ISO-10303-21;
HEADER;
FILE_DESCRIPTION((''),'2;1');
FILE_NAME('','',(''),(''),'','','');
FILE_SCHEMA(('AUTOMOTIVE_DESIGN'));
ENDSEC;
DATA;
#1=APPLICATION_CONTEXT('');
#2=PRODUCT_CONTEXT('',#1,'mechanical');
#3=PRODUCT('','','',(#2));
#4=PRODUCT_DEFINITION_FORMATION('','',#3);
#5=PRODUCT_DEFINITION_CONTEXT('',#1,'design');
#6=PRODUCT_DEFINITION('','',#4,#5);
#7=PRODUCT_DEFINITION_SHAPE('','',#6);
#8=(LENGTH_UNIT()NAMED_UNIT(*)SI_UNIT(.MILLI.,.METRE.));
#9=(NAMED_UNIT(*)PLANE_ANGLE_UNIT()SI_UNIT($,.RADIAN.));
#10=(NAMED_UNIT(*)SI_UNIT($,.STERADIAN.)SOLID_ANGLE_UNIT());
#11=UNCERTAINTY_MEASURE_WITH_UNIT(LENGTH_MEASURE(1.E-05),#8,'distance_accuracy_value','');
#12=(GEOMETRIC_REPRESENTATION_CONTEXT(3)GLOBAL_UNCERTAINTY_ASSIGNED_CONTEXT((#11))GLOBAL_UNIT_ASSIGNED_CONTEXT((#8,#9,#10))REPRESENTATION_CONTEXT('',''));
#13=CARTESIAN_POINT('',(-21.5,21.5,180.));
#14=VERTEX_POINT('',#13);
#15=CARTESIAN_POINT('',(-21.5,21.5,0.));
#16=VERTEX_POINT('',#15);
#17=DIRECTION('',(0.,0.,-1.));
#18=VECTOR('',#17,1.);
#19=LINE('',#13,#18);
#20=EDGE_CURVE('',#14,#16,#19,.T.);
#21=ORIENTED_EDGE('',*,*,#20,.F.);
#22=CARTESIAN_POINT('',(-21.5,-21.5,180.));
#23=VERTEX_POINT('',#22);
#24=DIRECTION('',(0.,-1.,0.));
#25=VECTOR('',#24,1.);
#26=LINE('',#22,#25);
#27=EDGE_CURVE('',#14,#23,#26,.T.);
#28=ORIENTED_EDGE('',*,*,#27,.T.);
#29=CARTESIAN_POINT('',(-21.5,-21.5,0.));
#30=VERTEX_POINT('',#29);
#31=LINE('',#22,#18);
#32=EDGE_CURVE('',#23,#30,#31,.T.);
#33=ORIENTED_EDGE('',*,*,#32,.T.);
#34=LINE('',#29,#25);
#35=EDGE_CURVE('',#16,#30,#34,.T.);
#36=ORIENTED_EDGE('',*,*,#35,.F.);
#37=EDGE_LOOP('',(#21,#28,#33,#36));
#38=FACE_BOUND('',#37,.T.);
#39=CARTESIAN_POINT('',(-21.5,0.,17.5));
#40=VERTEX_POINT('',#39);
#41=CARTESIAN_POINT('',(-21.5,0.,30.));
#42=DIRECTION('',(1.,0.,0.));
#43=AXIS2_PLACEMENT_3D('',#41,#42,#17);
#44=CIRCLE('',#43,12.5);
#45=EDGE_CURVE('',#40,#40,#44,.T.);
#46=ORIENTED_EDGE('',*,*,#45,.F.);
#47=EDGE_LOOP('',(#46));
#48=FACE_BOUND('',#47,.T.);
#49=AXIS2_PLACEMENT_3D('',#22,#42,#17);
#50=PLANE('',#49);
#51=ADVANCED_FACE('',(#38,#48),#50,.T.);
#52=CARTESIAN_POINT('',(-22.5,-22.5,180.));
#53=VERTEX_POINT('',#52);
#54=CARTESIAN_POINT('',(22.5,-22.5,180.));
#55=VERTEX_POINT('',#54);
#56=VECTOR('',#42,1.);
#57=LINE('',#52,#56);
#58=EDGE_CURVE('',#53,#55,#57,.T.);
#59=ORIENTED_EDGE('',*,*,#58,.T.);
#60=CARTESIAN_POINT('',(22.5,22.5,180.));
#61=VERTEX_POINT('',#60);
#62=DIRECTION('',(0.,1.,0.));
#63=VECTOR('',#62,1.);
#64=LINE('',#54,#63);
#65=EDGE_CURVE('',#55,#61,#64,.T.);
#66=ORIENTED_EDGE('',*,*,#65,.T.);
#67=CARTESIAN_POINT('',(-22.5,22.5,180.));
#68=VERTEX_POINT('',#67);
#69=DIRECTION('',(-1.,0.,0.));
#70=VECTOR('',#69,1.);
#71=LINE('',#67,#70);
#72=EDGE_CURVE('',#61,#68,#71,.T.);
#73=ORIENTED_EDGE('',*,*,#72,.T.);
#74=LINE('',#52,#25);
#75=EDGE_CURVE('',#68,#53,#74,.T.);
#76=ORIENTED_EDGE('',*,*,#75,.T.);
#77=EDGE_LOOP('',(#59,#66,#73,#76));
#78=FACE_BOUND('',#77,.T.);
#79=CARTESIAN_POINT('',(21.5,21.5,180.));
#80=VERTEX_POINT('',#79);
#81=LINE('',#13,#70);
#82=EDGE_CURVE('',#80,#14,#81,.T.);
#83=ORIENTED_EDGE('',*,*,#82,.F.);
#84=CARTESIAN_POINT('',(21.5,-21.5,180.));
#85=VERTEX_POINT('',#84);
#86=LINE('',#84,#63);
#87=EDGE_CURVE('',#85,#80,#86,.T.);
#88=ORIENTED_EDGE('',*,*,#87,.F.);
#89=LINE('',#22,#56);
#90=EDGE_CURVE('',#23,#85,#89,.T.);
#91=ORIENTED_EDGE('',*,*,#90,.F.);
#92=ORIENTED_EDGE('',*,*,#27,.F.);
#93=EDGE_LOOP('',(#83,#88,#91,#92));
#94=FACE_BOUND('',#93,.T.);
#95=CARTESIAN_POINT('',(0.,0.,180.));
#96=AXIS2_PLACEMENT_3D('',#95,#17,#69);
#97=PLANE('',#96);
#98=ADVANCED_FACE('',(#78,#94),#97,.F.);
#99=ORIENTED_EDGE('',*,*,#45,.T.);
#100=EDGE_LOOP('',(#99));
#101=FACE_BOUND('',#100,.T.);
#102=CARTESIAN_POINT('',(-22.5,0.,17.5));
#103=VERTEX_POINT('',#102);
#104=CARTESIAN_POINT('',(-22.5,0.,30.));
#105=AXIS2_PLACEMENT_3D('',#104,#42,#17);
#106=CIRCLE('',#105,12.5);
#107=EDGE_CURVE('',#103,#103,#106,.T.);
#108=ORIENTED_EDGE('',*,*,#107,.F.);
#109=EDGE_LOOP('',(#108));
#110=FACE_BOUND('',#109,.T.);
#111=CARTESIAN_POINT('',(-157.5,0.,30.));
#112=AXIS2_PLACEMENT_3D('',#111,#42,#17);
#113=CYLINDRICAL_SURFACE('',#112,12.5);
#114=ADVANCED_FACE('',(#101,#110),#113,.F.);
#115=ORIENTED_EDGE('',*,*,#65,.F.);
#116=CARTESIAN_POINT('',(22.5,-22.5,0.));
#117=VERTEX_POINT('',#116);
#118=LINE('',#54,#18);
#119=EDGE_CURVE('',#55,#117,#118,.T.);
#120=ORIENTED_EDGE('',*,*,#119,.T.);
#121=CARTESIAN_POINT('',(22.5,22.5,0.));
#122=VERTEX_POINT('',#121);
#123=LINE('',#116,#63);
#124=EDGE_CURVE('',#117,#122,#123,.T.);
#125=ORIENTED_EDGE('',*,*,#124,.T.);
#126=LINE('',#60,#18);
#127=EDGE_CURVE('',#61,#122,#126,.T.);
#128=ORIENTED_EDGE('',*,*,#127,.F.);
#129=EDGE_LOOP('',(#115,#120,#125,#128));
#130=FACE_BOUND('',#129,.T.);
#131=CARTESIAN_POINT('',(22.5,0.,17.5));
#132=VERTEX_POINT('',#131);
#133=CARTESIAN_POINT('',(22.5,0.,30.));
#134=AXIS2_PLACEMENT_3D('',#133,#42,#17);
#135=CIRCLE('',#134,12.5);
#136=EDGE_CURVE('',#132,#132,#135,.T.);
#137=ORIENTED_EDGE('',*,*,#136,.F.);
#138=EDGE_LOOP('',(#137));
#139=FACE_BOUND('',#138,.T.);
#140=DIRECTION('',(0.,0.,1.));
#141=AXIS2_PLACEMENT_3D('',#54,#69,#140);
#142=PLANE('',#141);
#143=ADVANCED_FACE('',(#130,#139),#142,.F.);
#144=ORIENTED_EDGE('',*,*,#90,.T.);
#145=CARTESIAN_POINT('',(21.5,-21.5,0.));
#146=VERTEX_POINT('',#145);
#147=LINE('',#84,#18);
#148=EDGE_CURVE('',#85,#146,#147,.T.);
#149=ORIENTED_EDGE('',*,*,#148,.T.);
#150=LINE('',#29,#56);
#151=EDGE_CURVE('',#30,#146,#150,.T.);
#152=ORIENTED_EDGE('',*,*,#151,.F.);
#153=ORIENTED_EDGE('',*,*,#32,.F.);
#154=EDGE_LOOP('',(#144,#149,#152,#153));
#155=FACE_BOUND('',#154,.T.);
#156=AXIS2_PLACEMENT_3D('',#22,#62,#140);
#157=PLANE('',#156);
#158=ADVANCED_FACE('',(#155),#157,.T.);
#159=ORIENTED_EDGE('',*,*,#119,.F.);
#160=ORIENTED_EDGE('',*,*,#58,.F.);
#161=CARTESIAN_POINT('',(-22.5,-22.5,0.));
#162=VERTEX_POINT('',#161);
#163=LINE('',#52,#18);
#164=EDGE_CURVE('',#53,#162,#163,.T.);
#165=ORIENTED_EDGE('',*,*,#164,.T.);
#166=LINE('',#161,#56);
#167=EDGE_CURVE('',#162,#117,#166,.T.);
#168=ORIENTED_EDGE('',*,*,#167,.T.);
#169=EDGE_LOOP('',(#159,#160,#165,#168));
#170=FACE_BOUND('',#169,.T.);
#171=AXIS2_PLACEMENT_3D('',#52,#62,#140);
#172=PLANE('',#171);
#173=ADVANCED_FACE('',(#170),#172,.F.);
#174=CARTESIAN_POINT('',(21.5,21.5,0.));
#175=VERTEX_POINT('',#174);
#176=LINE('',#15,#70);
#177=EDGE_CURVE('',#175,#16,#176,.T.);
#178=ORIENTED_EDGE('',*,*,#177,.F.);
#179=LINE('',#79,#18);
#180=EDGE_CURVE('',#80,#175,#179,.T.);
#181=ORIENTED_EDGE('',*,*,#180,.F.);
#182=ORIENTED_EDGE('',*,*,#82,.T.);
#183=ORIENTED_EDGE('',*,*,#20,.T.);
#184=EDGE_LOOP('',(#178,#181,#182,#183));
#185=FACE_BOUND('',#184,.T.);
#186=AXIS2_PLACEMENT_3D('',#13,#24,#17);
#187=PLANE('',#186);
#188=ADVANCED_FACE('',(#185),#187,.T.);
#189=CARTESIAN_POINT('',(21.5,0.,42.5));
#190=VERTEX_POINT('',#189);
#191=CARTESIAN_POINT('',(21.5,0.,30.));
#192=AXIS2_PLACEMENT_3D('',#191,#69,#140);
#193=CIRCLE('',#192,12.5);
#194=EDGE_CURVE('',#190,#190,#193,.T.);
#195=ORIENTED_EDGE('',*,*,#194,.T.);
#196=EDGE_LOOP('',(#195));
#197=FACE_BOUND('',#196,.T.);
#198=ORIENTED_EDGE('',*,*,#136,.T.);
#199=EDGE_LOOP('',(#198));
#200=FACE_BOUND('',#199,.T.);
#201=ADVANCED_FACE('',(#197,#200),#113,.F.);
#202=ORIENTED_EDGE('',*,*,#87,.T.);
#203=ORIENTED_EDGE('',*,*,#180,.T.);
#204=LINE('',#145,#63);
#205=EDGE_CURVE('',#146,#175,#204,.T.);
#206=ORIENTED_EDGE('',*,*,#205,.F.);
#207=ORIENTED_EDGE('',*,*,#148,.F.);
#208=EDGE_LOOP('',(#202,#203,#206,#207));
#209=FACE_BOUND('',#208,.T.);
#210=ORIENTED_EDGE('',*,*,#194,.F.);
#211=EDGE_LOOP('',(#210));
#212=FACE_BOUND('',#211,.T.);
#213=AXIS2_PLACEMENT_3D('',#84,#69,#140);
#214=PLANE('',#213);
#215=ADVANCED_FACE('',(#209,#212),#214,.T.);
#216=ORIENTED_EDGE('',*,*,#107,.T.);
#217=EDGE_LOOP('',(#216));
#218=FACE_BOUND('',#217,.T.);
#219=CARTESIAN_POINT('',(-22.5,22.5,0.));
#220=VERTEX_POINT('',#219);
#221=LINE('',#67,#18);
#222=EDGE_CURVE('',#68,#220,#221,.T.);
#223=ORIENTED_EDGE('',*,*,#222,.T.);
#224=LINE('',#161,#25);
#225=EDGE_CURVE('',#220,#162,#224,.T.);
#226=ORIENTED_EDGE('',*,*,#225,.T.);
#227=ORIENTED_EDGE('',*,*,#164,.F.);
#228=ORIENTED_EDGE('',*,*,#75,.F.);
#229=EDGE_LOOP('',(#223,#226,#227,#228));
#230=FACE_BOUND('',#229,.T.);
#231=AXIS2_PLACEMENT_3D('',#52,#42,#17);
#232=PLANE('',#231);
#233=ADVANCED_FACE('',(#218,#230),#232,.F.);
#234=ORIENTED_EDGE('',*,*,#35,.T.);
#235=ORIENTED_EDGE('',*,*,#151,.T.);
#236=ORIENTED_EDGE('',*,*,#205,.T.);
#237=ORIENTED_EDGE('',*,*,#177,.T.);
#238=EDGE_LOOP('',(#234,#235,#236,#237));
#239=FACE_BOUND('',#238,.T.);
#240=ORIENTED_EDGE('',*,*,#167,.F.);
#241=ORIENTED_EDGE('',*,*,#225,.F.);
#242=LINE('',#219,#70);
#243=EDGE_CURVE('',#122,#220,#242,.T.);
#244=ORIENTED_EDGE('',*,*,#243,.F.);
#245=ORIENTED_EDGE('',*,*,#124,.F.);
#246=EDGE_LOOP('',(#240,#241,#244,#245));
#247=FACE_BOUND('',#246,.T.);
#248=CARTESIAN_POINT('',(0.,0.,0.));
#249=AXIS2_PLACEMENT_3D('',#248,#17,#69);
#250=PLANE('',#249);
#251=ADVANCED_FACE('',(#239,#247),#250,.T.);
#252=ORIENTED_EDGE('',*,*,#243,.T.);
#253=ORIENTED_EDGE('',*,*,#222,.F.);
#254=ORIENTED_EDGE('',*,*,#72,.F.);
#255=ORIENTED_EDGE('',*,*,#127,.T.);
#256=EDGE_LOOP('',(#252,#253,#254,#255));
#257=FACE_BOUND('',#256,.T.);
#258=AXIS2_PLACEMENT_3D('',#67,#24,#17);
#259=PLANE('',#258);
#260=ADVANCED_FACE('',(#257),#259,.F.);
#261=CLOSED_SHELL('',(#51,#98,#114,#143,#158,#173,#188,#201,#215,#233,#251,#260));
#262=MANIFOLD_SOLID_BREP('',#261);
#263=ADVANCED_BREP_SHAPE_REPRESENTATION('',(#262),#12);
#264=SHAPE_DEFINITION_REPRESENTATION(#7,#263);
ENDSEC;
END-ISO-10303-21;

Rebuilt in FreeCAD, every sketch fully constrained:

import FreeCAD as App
import Part
import Sketcher
from FreeCAD import Vector


def add_polygon(sketch, points):
    """Adds a closed chain of lines whose ends are joined by coincident constraints."""
    first, n = sketch.GeometryCount, len(points)
    for a, b in zip(points, points[1:] + points[:1]):
        sketch.addGeometry(Part.LineSegment(App.Vector(*a, 0), App.Vector(*b, 0)), False)
    for i in range(n):
        sketch.addConstraint(Sketcher.Constraint("Coincident", first + i, 2, first + (i + 1) % n, 1))

doc = App.newDocument("Part")
body = doc.addObject("PartDesign::Body", "Body")

# Sketch on XY plane
sketch1 = body.newObject("Sketcher::SketchObject", "Sketch")
sketch1.AttachmentSupport = (doc.getObject("XY_Plane"), [""])
sketch1.MapMode = "FlatFace"
add_polygon(sketch1, [(-22, 22), (-22, -22), (22, -22), (22, 22)])  # lines 0-3
add_polygon(sketch1, [(22, -22), (-22, -22), (-22, 22), (22, 22)])  # lines 4-7
sketch1.addConstraint([
    Sketcher.Constraint("Vertical", 0),
    Sketcher.Constraint("Horizontal", 1),
    Sketcher.Constraint("Vertical", 2),
    Sketcher.Constraint("Horizontal", 3),
    Sketcher.Constraint("Horizontal", 4),
    Sketcher.Constraint("Vertical", 5),
    Sketcher.Constraint("Horizontal", 6),
    Sketcher.Constraint("Vertical", 7),
    Sketcher.Constraint("Symmetric", 0, 2, 2, 2, -1, 1),
    Sketcher.Constraint("Symmetric", 4, 2, 6, 2, -1, 1),
    Sketcher.Constraint("Equal", 3, 0),
    Sketcher.Constraint("Equal", 6, 5),
    Sketcher.Constraint("DistanceX", 1, 1, 1, 2, 45.0),
    Sketcher.Constraint("DistanceX", 4, 2, 4, 1, 43.0),
])
pad1 = body.newObject("PartDesign::Pad", "Pad")
pad1.Profile = sketch1
pad1.Length = 180

# Sketch on YZ plane
sketch2 = body.newObject("Sketcher::SketchObject", "Sketch001")
sketch2.AttachmentSupport = (doc.getObject("YZ_Plane"), [""])
sketch2.MapMode = "FlatFace"
sketch2.AttachmentOffset = App.Placement(Vector(0, 0, 22.5), App.Rotation())
sketch2.addGeometry(Part.Circle(Vector(0, 30, 0), Vector(0, 0, 1), 12), False)
sketch2.addConstraint([
    Sketcher.Constraint("PointOnObject", 0, 3, -2),
    Sketcher.Constraint("Diameter", 0, 25.0),
    Sketcher.Constraint("DistanceY", -1, 1, 0, 3, 30.0),
])
pocket1 = body.newObject("PartDesign::Pocket", "Pocket")
pocket1.Profile = sketch2
pocket1.Length = 180

doc.recompute()
